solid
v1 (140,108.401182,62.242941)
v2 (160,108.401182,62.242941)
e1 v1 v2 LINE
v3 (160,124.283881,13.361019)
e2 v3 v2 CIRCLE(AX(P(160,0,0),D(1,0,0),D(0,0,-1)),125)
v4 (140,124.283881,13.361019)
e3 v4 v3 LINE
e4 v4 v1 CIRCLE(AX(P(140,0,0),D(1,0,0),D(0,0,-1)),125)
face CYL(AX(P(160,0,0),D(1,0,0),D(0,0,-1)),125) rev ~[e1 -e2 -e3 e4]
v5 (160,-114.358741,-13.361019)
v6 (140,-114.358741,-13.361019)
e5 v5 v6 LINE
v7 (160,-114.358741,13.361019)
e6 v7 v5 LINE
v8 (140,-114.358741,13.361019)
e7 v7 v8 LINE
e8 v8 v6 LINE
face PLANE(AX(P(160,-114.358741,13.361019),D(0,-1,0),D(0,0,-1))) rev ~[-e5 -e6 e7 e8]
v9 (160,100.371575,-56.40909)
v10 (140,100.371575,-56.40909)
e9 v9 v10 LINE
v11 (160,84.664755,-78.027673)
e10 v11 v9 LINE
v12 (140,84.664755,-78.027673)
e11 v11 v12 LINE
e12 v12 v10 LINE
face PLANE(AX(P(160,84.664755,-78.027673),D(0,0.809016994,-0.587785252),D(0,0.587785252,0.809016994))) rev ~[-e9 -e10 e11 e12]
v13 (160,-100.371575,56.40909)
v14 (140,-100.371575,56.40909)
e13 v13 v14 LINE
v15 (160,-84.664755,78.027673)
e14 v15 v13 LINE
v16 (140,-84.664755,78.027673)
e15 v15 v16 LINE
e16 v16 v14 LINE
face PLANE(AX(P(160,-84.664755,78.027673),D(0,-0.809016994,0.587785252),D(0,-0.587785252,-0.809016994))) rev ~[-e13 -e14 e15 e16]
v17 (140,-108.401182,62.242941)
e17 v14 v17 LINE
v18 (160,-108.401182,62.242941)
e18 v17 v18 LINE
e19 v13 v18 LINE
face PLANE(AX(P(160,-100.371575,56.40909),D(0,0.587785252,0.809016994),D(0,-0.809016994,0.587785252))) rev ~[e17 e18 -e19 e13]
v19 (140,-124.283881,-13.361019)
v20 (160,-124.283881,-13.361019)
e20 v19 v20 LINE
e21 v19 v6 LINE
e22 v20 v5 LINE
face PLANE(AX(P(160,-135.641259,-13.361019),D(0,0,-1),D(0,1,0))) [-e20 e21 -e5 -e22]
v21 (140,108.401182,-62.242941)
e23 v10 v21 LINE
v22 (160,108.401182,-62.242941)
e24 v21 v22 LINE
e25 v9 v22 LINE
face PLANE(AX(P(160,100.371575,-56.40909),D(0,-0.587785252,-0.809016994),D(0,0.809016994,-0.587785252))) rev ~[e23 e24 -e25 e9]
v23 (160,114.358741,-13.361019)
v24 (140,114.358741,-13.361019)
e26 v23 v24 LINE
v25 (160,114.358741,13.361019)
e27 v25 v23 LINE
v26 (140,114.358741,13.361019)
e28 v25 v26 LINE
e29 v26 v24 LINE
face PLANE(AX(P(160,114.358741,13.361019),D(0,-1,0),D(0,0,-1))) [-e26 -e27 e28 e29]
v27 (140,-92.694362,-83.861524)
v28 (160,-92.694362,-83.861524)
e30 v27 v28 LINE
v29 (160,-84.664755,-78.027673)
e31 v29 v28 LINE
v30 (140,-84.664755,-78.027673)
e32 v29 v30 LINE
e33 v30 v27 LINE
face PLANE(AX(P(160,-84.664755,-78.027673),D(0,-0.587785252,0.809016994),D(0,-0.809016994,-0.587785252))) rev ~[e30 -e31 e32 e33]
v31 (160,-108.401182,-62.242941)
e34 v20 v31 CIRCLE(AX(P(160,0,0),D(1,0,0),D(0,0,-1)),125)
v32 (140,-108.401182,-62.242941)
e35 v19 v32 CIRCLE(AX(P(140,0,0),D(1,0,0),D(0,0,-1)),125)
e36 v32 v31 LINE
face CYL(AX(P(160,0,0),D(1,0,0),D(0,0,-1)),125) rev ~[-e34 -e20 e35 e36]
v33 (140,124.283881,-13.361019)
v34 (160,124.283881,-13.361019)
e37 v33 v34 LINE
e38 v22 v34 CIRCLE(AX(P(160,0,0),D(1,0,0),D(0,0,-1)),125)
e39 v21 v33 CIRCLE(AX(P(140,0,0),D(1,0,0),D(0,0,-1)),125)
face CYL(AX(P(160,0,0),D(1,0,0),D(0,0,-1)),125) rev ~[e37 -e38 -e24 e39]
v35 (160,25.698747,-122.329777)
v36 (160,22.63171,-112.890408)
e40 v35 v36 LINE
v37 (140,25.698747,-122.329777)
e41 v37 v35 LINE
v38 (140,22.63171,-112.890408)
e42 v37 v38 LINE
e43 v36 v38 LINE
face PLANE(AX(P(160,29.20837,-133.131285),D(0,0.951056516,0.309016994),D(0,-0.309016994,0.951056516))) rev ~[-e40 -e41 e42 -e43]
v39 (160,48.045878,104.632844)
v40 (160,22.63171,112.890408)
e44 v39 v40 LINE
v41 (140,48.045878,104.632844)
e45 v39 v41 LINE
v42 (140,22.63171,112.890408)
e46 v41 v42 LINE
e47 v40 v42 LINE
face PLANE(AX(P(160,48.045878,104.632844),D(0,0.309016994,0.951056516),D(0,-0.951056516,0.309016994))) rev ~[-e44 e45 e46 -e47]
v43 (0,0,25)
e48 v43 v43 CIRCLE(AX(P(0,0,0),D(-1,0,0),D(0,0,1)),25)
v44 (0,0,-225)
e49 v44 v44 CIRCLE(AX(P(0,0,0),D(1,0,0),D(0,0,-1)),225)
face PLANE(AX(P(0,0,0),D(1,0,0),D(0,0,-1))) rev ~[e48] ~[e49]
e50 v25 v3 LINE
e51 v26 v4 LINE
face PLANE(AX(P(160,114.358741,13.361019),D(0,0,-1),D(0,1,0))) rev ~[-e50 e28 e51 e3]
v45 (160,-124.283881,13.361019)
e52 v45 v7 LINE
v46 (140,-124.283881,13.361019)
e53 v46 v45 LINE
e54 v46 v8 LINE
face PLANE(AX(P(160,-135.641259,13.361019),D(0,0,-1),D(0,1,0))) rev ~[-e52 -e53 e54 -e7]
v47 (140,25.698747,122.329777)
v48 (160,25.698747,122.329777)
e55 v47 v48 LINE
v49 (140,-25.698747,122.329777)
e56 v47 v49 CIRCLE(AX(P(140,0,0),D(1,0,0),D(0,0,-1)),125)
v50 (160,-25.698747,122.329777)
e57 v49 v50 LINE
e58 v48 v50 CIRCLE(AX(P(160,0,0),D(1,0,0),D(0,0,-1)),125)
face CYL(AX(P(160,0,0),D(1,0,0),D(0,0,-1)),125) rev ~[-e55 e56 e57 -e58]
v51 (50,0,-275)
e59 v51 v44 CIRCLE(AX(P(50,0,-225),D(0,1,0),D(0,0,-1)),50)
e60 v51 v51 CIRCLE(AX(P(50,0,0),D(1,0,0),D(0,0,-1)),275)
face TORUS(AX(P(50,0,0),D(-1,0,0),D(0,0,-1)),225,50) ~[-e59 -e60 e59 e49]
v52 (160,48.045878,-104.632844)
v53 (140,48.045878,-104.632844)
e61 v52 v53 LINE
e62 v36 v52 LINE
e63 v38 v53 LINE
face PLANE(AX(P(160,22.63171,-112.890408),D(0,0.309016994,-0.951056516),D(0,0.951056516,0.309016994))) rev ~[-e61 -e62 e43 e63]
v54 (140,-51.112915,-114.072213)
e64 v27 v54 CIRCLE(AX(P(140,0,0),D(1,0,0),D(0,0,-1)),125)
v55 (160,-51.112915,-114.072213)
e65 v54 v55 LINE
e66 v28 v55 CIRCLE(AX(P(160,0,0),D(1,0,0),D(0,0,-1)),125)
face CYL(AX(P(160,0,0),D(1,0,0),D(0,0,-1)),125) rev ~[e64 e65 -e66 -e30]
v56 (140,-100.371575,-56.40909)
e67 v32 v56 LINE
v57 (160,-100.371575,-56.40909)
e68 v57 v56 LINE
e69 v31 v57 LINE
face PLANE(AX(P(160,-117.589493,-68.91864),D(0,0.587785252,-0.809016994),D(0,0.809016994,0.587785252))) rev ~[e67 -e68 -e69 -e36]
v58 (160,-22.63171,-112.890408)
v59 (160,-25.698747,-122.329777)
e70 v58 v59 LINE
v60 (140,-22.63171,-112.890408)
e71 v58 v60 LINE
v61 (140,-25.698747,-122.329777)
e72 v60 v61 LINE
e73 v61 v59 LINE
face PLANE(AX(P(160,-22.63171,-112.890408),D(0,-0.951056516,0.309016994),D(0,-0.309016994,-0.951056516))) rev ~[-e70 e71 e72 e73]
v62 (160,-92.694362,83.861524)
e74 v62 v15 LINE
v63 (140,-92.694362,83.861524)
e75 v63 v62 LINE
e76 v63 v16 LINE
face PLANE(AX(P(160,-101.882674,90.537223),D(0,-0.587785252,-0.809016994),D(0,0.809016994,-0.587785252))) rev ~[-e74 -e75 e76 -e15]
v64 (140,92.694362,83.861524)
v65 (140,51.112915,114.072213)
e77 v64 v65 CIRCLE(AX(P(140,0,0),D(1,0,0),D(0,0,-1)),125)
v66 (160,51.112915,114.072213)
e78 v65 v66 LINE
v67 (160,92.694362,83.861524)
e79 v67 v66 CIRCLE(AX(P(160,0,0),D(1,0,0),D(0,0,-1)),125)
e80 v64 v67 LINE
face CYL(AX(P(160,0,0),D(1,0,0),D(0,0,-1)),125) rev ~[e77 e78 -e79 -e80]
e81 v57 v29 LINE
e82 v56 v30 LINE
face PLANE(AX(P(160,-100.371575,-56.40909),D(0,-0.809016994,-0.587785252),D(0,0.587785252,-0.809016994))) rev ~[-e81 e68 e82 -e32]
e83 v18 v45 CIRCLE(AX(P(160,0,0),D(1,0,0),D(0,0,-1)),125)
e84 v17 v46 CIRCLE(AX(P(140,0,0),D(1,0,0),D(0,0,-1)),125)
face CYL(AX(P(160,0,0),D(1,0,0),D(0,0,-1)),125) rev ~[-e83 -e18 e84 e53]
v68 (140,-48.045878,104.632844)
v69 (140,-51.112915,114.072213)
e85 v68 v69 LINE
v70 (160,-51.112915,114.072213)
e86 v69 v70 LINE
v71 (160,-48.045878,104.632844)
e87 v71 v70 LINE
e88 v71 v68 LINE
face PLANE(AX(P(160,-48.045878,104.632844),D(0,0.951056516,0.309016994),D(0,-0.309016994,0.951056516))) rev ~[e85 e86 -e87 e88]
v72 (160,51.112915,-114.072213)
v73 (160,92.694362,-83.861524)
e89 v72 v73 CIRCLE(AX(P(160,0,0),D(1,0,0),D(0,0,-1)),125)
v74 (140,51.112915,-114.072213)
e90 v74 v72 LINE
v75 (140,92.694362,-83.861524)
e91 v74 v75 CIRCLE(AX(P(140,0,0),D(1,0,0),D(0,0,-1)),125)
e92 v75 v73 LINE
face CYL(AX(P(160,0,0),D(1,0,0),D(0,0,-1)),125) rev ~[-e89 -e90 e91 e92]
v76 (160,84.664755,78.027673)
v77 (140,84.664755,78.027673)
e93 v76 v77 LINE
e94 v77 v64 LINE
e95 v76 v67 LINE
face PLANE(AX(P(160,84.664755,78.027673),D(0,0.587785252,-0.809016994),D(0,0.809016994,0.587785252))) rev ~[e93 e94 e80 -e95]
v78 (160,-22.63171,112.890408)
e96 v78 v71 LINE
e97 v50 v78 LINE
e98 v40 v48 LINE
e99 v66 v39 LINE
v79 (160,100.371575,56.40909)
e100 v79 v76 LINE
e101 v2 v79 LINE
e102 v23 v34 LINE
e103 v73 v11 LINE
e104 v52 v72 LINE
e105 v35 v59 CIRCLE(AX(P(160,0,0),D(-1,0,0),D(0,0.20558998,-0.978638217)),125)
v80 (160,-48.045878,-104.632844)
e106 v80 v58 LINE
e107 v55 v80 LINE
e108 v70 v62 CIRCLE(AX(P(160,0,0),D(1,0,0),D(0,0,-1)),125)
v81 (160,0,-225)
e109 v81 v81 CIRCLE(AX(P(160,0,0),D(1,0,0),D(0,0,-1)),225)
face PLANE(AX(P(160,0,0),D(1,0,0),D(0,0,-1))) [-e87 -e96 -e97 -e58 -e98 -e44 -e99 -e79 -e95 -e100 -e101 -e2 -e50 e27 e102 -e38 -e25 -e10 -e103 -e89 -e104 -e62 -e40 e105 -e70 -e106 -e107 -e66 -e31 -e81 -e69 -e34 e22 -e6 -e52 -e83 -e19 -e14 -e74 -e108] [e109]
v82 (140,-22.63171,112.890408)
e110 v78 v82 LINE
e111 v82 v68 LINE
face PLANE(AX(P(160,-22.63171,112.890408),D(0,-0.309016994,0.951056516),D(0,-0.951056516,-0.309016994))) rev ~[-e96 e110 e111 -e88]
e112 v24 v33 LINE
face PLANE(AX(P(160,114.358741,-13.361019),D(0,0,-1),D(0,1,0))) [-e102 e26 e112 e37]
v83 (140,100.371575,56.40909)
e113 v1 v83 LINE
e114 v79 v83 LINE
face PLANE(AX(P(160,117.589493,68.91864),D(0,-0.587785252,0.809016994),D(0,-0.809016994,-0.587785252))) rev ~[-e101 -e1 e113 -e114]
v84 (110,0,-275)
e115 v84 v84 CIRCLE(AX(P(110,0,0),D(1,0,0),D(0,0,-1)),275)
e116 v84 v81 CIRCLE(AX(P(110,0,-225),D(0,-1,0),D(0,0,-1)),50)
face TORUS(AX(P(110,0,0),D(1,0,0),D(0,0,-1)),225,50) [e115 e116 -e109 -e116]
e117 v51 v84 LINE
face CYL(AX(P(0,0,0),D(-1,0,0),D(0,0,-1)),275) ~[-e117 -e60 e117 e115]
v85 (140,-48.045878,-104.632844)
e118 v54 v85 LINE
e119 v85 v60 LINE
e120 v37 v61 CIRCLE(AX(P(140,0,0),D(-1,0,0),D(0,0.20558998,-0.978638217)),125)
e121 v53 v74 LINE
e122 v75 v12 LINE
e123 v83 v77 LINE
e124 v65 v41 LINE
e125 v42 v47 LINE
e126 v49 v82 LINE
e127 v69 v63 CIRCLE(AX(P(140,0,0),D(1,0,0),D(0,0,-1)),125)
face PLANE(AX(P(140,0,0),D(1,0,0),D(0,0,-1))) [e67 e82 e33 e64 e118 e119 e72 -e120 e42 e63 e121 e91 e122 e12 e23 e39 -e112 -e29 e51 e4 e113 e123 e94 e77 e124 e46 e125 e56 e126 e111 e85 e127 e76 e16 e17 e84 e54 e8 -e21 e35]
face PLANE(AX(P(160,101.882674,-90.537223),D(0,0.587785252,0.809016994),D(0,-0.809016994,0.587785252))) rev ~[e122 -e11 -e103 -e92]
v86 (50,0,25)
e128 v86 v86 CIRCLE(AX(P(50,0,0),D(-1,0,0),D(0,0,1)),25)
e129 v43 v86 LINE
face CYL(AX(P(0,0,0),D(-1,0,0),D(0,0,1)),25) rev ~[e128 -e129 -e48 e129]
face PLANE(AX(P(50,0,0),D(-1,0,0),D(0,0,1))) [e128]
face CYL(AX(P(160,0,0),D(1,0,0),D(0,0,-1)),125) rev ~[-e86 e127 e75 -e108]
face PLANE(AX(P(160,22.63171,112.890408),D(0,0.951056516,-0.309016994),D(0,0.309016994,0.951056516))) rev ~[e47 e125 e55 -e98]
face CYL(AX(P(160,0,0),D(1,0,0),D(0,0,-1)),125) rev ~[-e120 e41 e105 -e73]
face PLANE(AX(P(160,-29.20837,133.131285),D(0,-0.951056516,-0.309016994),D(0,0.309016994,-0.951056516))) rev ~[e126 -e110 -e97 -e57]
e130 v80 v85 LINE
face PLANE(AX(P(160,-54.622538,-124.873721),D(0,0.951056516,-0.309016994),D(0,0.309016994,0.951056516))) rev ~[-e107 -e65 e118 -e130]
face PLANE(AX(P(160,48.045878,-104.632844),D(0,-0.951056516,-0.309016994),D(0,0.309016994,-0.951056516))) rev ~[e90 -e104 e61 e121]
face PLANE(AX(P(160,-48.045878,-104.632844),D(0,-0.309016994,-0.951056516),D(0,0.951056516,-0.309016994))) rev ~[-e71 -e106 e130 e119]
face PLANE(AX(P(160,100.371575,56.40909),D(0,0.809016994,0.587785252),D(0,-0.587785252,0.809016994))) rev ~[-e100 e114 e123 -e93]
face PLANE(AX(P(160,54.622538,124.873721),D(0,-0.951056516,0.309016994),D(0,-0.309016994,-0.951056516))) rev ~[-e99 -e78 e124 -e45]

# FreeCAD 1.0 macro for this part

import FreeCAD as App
import Part
import Sketcher

V = App.Vector
Q = App.Units.Quantity


def edges_at(feature, points):
    """Names of the edges that pass closest to the given points."""
    edges = feature.Shape.Edges
    near = lambda p: min(range(len(edges)), key=lambda i: edges[i].distToShape(Part.Vertex(*p))[0])
    return sorted({f"Edge{near(p) + 1}" for p in points})

doc = App.newDocument("Part")
params = doc.addObject("Spreadsheet::Sheet", "Params")
for row, (alias, value) in enumerate([
    ("sketch1_diameter", "550 mm"),
    ("pad1_length", "160 mm"),
    ("fillet_radius", "50 mm"),
    ("sketch2_diameter", "50 mm"),
    ("pocket1_length", "50 mm"),
    ("sketch3_diameter", "250 mm"),
    ("pocket2_length", "20 mm"),
    ("pad2_length", "77 mm"),
], start=1):
    params.set(f"A{row}", alias)
    params.set(f"B{row}", "=" + value)
    params.setAlias(f"B{row}", alias)

body = doc.addObject("PartDesign::Body", "Body")

sketch1 = doc.addObject("Sketcher::SketchObject", "Sketch")
body.addObject(sketch1)
sketch1.AttachmentSupport = (doc.YZ_Plane, [""])
sketch1.MapMode = "FlatFace"
sketch1.addGeometry(Part.Circle(V(0, 0, 0), V(0, 0, 1), 275), False)
sketch1.addConstraint([
    Sketcher.Constraint("Coincident", 0, 3, -1, 1),
    Sketcher.Constraint("Diameter", 0, 550.0),
])
sketch1.setExpression("Constraints[1]", "Params.sketch1_diameter")
pad1 = doc.addObject("PartDesign::Pad", "Pad")
body.addObject(pad1)
pad1.Profile = sketch1
pad1.setExpression("Length", "Params.pad1_length")
doc.recompute()

fillet = doc.addObject("PartDesign::Fillet", "Fillet")
body.addObject(fillet)
fillet.Base = (pad1, edges_at(pad1, [(0, 0, 275), (160, 0, 275)]))
fillet.setExpression("Radius", "Params.fillet_radius")

sketch2 = doc.addObject("Sketcher::SketchObject", "Sketch001")
body.addObject(sketch2)
sketch2.AttachmentSupport = (doc.YZ_Plane, [""])
sketch2.MapMode = "FlatFace"
sketch2.addGeometry(Part.Circle(V(0, 0, 0), V(0, 0, 1), 25), False)
sketch2.addConstraint([
    Sketcher.Constraint("Coincident", 0, 3, -1, 1),
    Sketcher.Constraint("Diameter", 0, 50.0),
])
sketch2.setExpression("Constraints[1]", "Params.sketch2_diameter")
pocket1 = doc.addObject("PartDesign::Pocket", "Pocket")
body.addObject(pocket1)
pocket1.Profile = sketch2
pocket1.setExpression("Length", "Params.pocket1_length")
pocket1.Reversed = True

sketch3 = doc.addObject("Sketcher::SketchObject", "Sketch002")
body.addObject(sketch3)
sketch3.AttachmentSupport = (doc.YZ_Plane, [""])
sketch3.MapMode = "FlatFace"
sketch3.AttachmentOffset = App.Placement(V(0, 0, 160), App.Rotation())
sketch3.addGeometry(Part.Circle(V(0, 0, 0), V(0, 0, 1), 125), False)
sketch3.addConstraint([
    Sketcher.Constraint("Coincident", 0, 3, -1, 1),
    Sketcher.Constraint("Diameter", 0, 250.0),
])
sketch3.setExpression("Constraints[1]", "Params.sketch3_diameter")
pocket2 = doc.addObject("PartDesign::Pocket", "Pocket001")
body.addObject(pocket2)
pocket2.Profile = sketch3
pocket2.setExpression("Length", "Params.pocket2_length")

sketch4 = doc.addObject("Sketcher::SketchObject", "Sketch003")
body.addObject(sketch4)
sketch4.AttachmentSupport = (doc.YZ_Plane, [""])
sketch4.MapMode = "FlatFace"
sketch4.AttachmentOffset = App.Placement(V(0, 0, 160), App.Rotation())
sketch4.addGeometry([
    Part.LineSegment(V(-114, 13, 0), V(-136, 13, 0)),
    Part.LineSegment(V(-136, 13, 0), V(-136, -13, 0)),
    Part.LineSegment(V(-136, -13, 0), V(-114, -13, 0)),
    Part.LineSegment(V(-114, -13, 0), V(-114, 13, 0)),
    Part.LineSegment(V(-118, 69, 0), V(-100, 56, 0)),
    Part.LineSegment(V(-100, 56, 0), V(-85, 78, 0)),
    Part.LineSegment(V(-85, 78, 0), V(-102, 91, 0)),
    Part.LineSegment(V(-102, 91, 0), V(-118, 69, 0)),
    Part.LineSegment(V(-55, 125, 0), V(-48, 105, 0)),
    Part.LineSegment(V(-48, 105, 0), V(-23, 113, 0)),
    Part.LineSegment(V(-23, 113, 0), V(-29, 133, 0)),
    Part.LineSegment(V(-29, 133, 0), V(-55, 125, 0)),
    Part.LineSegment(V(29, 133, 0), V(23, 113, 0)),
    Part.LineSegment(V(23, 113, 0), V(48, 105, 0)),
    Part.LineSegment(V(48, 105, 0), V(55, 125, 0)),
    Part.LineSegment(V(55, 125, 0), V(29, 133, 0)),
    Part.LineSegment(V(102, 91, 0), V(85, 78, 0)),
    Part.LineSegment(V(85, 78, 0), V(100, 56, 0)),
    Part.LineSegment(V(100, 56, 0), V(118, 69, 0)),
    Part.LineSegment(V(118, 69, 0), V(102, 91, 0)),
    Part.LineSegment(V(136, 13, 0), V(114, 13, 0)),
    Part.LineSegment(V(114, 13, 0), V(114, -13, 0)),
    Part.LineSegment(V(114, -13, 0), V(136, -13, 0)),
    Part.LineSegment(V(136, -13, 0), V(136, 13, 0)),
    Part.LineSegment(V(118, -69, 0), V(100, -56, 0)),
    Part.LineSegment(V(100, -56, 0), V(85, -78, 0)),
    Part.LineSegment(V(85, -78, 0), V(102, -91, 0)),
    Part.LineSegment(V(102, -91, 0), V(118, -69, 0)),
    Part.LineSegment(V(55, -125, 0), V(48, -105, 0)),
    Part.LineSegment(V(48, -105, 0), V(23, -113, 0)),
    Part.LineSegment(V(23, -113, 0), V(29, -133, 0)),
    Part.LineSegment(V(29, -133, 0), V(55, -125, 0)),
    Part.LineSegment(V(-29, -133, 0), V(-23, -113, 0)),
    Part.LineSegment(V(-23, -113, 0), V(-48, -105, 0)),
    Part.LineSegment(V(-48, -105, 0), V(-55, -125, 0)),
    Part.LineSegment(V(-55, -125, 0), V(-29, -133, 0)),
    Part.LineSegment(V(-102, -91, 0), V(-85, -78, 0)),
    Part.LineSegment(V(-85, -78, 0), V(-100, -56, 0)),
    Part.LineSegment(V(-100, -56, 0), V(-118, -69, 0)),
    Part.LineSegment(V(-118, -69, 0), V(-102, -91, 0)),
], False)
sketch4.addConstraint([
    Sketcher.Constraint("Coincident", 0, 2, 1, 1),
    Sketcher.Constraint("Coincident", 1, 2, 2, 1),
    Sketcher.Constraint("Coincident", 2, 2, 3, 1),
    Sketcher.Constraint("Coincident", 3, 2, 0, 1),
    Sketcher.Constraint("Coincident", 4, 2, 5, 1),
    Sketcher.Constraint("Coincident", 5, 2, 6, 1),
    Sketcher.Constraint("Coincident", 6, 2, 7, 1),
    Sketcher.Constraint("Coincident", 7, 2, 4, 1),
    Sketcher.Constraint("Coincident", 8, 2, 9, 1),
    Sketcher.Constraint("Coincident", 9, 2, 10, 1),
    Sketcher.Constraint("Coincident", 10, 2, 11, 1),
    Sketcher.Constraint("Coincident", 11, 2, 8, 1),
    Sketcher.Constraint("Coincident", 12, 2, 13, 1),
    Sketcher.Constraint("Coincident", 13, 2, 14, 1),
    Sketcher.Constraint("Coincident", 14, 2, 15, 1),
    Sketcher.Constraint("Coincident", 15, 2, 12, 1),
    Sketcher.Constraint("Coincident", 16, 2, 17, 1),
    Sketcher.Constraint("Coincident", 17, 2, 18, 1),
    Sketcher.Constraint("Coincident", 18, 2, 19, 1),
    Sketcher.Constraint("Coincident", 19, 2, 16, 1),
    Sketcher.Constraint("Coincident", 20, 2, 21, 1),
    Sketcher.Constraint("Coincident", 21, 2, 22, 1),
    Sketcher.Constraint("Coincident", 22, 2, 23, 1),
    Sketcher.Constraint("Coincident", 23, 2, 20, 1),
    Sketcher.Constraint("Coincident", 24, 2, 25, 1),
    Sketcher.Constraint("Coincident", 25, 2, 26, 1),
    Sketcher.Constraint("Coincident", 26, 2, 27, 1),
    Sketcher.Constraint("Coincident", 27, 2, 24, 1),
    Sketcher.Constraint("Coincident", 28, 2, 29, 1),
    Sketcher.Constraint("Coincident", 29, 2, 30, 1),
    Sketcher.Constraint("Coincident", 30, 2, 31, 1),
    Sketcher.Constraint("Coincident", 31, 2, 28, 1),
    Sketcher.Constraint("Coincident", 32, 2, 33, 1),
    Sketcher.Constraint("Coincident", 33, 2, 34, 1),
    Sketcher.Constraint("Coincident", 34, 2, 35, 1),
    Sketcher.Constraint("Coincident", 35, 2, 32, 1),
    Sketcher.Constraint("Coincident", 36, 2, 37, 1),
    Sketcher.Constraint("Coincident", 37, 2, 38, 1),
    Sketcher.Constraint("Coincident", 38, 2, 39, 1),
    Sketcher.Constraint("Coincident", 39, 2, 36, 1),
    Sketcher.Constraint("Horizontal", 0),
    Sketcher.Constraint("Vertical", 1),
    Sketcher.Constraint("Horizontal", 2),
    Sketcher.Constraint("Vertical", 3),
    Sketcher.Constraint("Horizontal", 20),
    Sketcher.Constraint("Vertical", 21),
    Sketcher.Constraint("Horizontal", 22),
    Sketcher.Constraint("Vertical", 23),
    Sketcher.Constraint("Symmetric", 2, 2, 20, 2, -1, 1),
    Sketcher.Constraint("Symmetric", 0, 2, 22, 2, -1, 1),
    Sketcher.Constraint("Symmetric", 4, 2, 24, 2, -1, 1),
    Sketcher.Constraint("Symmetric", 5, 2, 25, 2, -1, 1),
    Sketcher.Constraint("Symmetric", 6, 2, 26, 2, -1, 1),
    Sketcher.Constraint("Symmetric", 7, 2, 27, 2, -1, 1),
    Sketcher.Constraint("Symmetric", 8, 2, 28, 2, -1, 1),
    Sketcher.Constraint("Symmetric", 9, 2, 29, 2, -1, 1),
    Sketcher.Constraint("Symmetric", 10, 2, 30, 2, -1, 1),
    Sketcher.Constraint("Symmetric", 11, 2, 31, 2, -1, 1),
    Sketcher.Constraint("Symmetric", 12, 2, 32, 2, -1, 1),
    Sketcher.Constraint("Symmetric", 13, 2, 33, 2, -1, 1),
    Sketcher.Constraint("Symmetric", 14, 2, 34, 2, -1, 1),
    Sketcher.Constraint("Symmetric", 15, 2, 35, 2, -1, 1),
    Sketcher.Constraint("Symmetric", 16, 2, 36, 2, -1, 1),
    Sketcher.Constraint("Symmetric", 17, 2, 37, 2, -1, 1),
    Sketcher.Constraint("Symmetric", 18, 2, 38, 2, -1, 1),
    Sketcher.Constraint("Symmetric", 19, 2, 39, 2, -1, 1),
    Sketcher.Constraint("Symmetric", 9, 2, 12, 2, -2),
    Sketcher.Constraint("Symmetric", 8, 2, 13, 2, -2),
    Sketcher.Constraint("Symmetric", 11, 2, 14, 2, -2),
    Sketcher.Constraint("Symmetric", 10, 2, 15, 2, -2),
    Sketcher.Constraint("Symmetric", 5, 2, 16, 2, -2),
    Sketcher.Constraint("Symmetric", 4, 2, 17, 2, -2),
    Sketcher.Constraint("Symmetric", 7, 2, 18, 2, -2),
    Sketcher.Constraint("Symmetric", 6, 2, 19, 2, -2),
    Sketcher.Constraint("Perpendicular", 4, 5),
    Sketcher.Constraint("Perpendicular", 5, 6),
    Sketcher.Constraint("Perpendicular", 6, 7),
    Sketcher.Constraint("Perpendicular", 8, 9),
    Sketcher.Constraint("Perpendicular", 9, 10),
    Sketcher.Constraint("Perpendicular", 10, 11),
    Sketcher.Constraint("Horizontal", 3, 2, 20, 2),
    Sketcher.Constraint("Equal", 6, 8),
    Sketcher.Constraint("Equal", 7, 9),
    Sketcher.Constraint("Angle", 4, Q("-36 deg")),
    Sketcher.Constraint("Angle", 8, Q("-72 deg")),
    Sketcher.Constraint("DistanceX", 0, 2, 0, 1, 21.282518),
    Sketcher.Constraint("DistanceX", 6, 2, 4, 2, 1.511099),
    Sketcher.Constraint("DistanceY", 6, 2, 11, 2, 34.336498),
    Sketcher.Constraint("Distance", 4, 21.282518),
    Sketcher.Constraint("DistanceY", 1, 2, 1, 1, 26.722038),
    Sketcher.Constraint("DistanceX", 0, 2, -1, 1, 135.641259),
    Sketcher.Constraint("DistanceY", -1, 1, 4, 2, 56.40909),
    Sketcher.Constraint("DistanceX", 8, 2, -1, 1, 48.045878),
    Sketcher.Constraint("DistanceX", 4, 2, -1, 1, 100.371575),
])
pad2 = doc.addObject("PartDesign::Pad", "Pad001")
body.addObject(pad2)
pad2.Profile = sketch4
pad2.setExpression("Length", "Params.pad2_length")
pad2.Reversed = True

doc.recompute()
